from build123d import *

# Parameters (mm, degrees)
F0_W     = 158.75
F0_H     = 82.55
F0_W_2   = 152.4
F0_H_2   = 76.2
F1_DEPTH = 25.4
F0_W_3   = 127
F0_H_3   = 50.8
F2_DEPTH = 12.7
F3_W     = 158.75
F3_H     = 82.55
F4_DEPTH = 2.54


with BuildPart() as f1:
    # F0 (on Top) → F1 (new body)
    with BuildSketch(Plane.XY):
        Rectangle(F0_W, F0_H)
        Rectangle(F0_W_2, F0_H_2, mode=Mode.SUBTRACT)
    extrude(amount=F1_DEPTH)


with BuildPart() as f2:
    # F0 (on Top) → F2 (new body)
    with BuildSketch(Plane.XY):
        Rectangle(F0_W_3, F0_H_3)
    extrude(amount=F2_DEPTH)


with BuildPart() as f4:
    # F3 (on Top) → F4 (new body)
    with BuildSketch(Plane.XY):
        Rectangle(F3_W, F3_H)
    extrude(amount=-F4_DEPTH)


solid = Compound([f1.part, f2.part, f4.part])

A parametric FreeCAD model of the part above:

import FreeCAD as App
import Part
import Sketcher

V = App.Vector
Q = App.Units.Quantity

doc = App.newDocument("Part")
body = doc.addObject("PartDesign::Body", "Body")

# Sketch on XY plane
sketch1 = body.newObject("Sketcher::SketchObject", "Sketch")
sketch1.AttachmentSupport = (doc.getObject("XY_Plane"), [""])
sketch1.MapMode = "FlatFace"
sketch1.addGeometry(Part.LineSegment(V(-79, 41, 0), V(-79, -41, 0)), False)
sketch1.addGeometry(Part.LineSegment(V(-79, -41, 0), V(79, -41, 0)), False)
sketch1.addGeometry(Part.LineSegment(V(79, -41, 0), V(79, 41, 0)), False)
sketch1.addGeometry(Part.LineSegment(V(79, 41, 0), V(-79, 41, 0)), False)
sketch1.addGeometry(Part.LineSegment(V(76, -38, 0), V(-76, -38, 0)), False)
sketch1.addGeometry(Part.LineSegment(V(-76, -38, 0), V(-76, 38, 0)), False)
sketch1.addGeometry(Part.LineSegment(V(-76, 38, 0), V(76, 38, 0)), False)
sketch1.addGeometry(Part.LineSegment(V(76, 38, 0), V(76, -38, 0)), False)
sketch1.addConstraint(Sketcher.Constraint("Coincident", 0, 2, 1, 1))
sketch1.addConstraint(Sketcher.Constraint("Coincident", 1, 2, 2, 1))
sketch1.addConstraint(Sketcher.Constraint("Coincident", 2, 2, 3, 1))
sketch1.addConstraint(Sketcher.Constraint("Coincident", 3, 2, 0, 1))
sketch1.addConstraint(Sketcher.Constraint("Coincident", 4, 2, 5, 1))
sketch1.addConstraint(Sketcher.Constraint("Coincident", 5, 2, 6, 1))
sketch1.addConstraint(Sketcher.Constraint("Coincident", 6, 2, 7, 1))
sketch1.addConstraint(Sketcher.Constraint("Coincident", 7, 2, 4, 1))
sketch1.addConstraint(Sketcher.Constraint("Vertical", 0))
sketch1.addConstraint(Sketcher.Constraint("Horizontal", 1))
sketch1.addConstraint(Sketcher.Constraint("Vertical", 2))
sketch1.addConstraint(Sketcher.Constraint("Horizontal", 3))
sketch1.addConstraint(Sketcher.Constraint("Horizontal", 4))
sketch1.addConstraint(Sketcher.Constraint("Vertical", 5))
sketch1.addConstraint(Sketcher.Constraint("Horizontal", 6))
sketch1.addConstraint(Sketcher.Constraint("Vertical", 7))
sketch1.addConstraint(Sketcher.Constraint("Symmetric", 0, 2, 2, 2, -1, 1))
sketch1.addConstraint(Sketcher.Constraint("Symmetric", 4, 2, 6, 2, -1, 1))
sketch1.addConstraint(Sketcher.Constraint("DistanceX", 4, 2, 4, 1, Q("6 in")))
sketch1.addConstraint(Sketcher.Constraint("DistanceY", 5, 1, 5, 2, Q("3 in")))
sketch1.addConstraint(Sketcher.Constraint("DistanceX", 1, 1, 1, 2, Q("6.25 in")))
sketch1.addConstraint(Sketcher.Constraint("DistanceY", 0, 2, 0, 1, Q("3.25 in")))
pad1 = body.newObject("PartDesign::Pad", "Pad")
pad1.Profile = sketch1
pad1.Length = Q("1 in")
body2 = doc.addObject("PartDesign::Body", "Body001")

# Sketch on XY plane
sketch2 = body2.newObject("Sketcher::SketchObject", "Sketch001")
sketch2.AttachmentSupport = (doc.getObject("XY_Plane001"), [""])
sketch2.MapMode = "FlatFace"
sketch2.addGeometry(Part.LineSegment(V(-64, 25, 0), V(-64, -25, 0)), False)
sketch2.addGeometry(Part.LineSegment(V(-64, -25, 0), V(64, -25, 0)), False)
sketch2.addGeometry(Part.LineSegment(V(64, -25, 0), V(64, 25, 0)), False)
sketch2.addGeometry(Part.LineSegment(V(64, 25, 0), V(-64, 25, 0)), False)
sketch2.addConstraint(Sketcher.Constraint("Coincident", 0, 2, 1, 1))
sketch2.addConstraint(Sketcher.Constraint("Coincident", 1, 2, 2, 1))
sketch2.addConstraint(Sketcher.Constraint("Coincident", 2, 2, 3, 1))
sketch2.addConstraint(Sketcher.Constraint("Coincident", 3, 2, 0, 1))
sketch2.addConstraint(Sketcher.Constraint("Vertical", 0))
sketch2.addConstraint(Sketcher.Constraint("Horizontal", 1))
sketch2.addConstraint(Sketcher.Constraint("Vertical", 2))
sketch2.addConstraint(Sketcher.Constraint("Horizontal", 3))
sketch2.addConstraint(Sketcher.Constraint("Symmetric", 0, 2, 2, 2, -1, 1))
sketch2.addConstraint(Sketcher.Constraint("DistanceX", 1, 1, 1, 2, Q("5 in")))
sketch2.addConstraint(Sketcher.Constraint("DistanceY", 0, 2, 0, 1, Q("2 in")))
pad2 = body2.newObject("PartDesign::Pad", "Pad001")
pad2.Profile = sketch2
pad2.Length = Q("0.5 in")
body3 = doc.addObject("PartDesign::Body", "Body002")

# Sketch on XY plane
sketch3 = body3.newObject("Sketcher::SketchObject", "Sketch002")
sketch3.AttachmentSupport = (doc.getObject("XY_Plane002"), [""])
sketch3.MapMode = "FlatFace"
sketch3.addGeometry(Part.LineSegment(V(-79, 41, 0), V(-79, -41, 0)), False)
sketch3.addGeometry(Part.LineSegment(V(-79, -41, 0), V(79, -41, 0)), False)
sketch3.addGeometry(Part.LineSegment(V(79, -41, 0), V(79, 41, 0)), False)
sketch3.addGeometry(Part.LineSegment(V(79, 41, 0), V(-79, 41, 0)), False)
sketch3.addConstraint(Sketcher.Constraint("Coincident", 0, 2, 1, 1))
sketch3.addConstraint(Sketcher.Constraint("Coincident", 1, 2, 2, 1))
sketch3.addConstraint(Sketcher.Constraint("Coincident", 2, 2, 3, 1))
sketch3.addConstraint(Sketcher.Constraint("Coincident", 3, 2, 0, 1))
sketch3.addConstraint(Sketcher.Constraint("Vertical", 0))
sketch3.addConstraint(Sketcher.Constraint("Horizontal", 1))
sketch3.addConstraint(Sketcher.Constraint("Vertical", 2))
sketch3.addConstraint(Sketcher.Constraint("Horizontal", 3))
sketch3.addConstraint(Sketcher.Constraint("Symmetric", 0, 2, 2, 2, -1, 1))
sketch3.addConstraint(Sketcher.Constraint("DistanceX", 1, 1, 1, 2, Q("6.25 in")))
sketch3.addConstraint(Sketcher.Constraint("DistanceY", 0, 2, 0, 1, Q("3.25 in")))
pad3 = body3.newObject("PartDesign::Pad", "Pad002")
pad3.Profile = sketch3
pad3.Length = Q("0.1 in")
pad3.Reversed = True

doc.recompute()
